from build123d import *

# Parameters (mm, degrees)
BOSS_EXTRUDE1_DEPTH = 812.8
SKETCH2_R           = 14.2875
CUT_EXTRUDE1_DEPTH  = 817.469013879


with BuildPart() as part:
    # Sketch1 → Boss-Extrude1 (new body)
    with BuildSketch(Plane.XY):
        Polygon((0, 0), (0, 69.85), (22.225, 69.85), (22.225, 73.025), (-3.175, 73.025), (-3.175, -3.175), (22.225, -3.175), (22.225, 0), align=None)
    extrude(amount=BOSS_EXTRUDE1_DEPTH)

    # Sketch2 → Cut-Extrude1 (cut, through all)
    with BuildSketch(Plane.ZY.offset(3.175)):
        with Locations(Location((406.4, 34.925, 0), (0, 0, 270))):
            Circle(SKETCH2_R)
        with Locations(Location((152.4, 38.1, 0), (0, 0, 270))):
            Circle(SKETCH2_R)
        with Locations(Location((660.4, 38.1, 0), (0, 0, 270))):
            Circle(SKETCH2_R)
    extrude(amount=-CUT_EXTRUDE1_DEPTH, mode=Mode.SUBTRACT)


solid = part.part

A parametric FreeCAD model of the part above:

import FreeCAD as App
import Part
import Sketcher

V = App.Vector
Q = App.Units.Quantity


def add_polygon(sketch, points):
    """Adds a closed chain of lines whose ends are joined by coincident constraints."""
    first, n = sketch.GeometryCount, len(points)
    for a, b in zip(points, points[1:] + points[:1]):
        sketch.addGeometry(Part.LineSegment(App.Vector(*a, 0), App.Vector(*b, 0)), False)
    for i in range(n):
        sketch.addConstraint(Sketcher.Constraint("Coincident", first + i, 2, first + (i + 1) % n, 1))

doc = App.newDocument("Part")
body = doc.addObject("PartDesign::Body", "Body")

sketch1 = body.newObject("Sketcher::SketchObject", "Sketch")
sketch1.AttachmentSupport = (doc.getObject("XY_Plane"), [""])
sketch1.MapMode = "FlatFace"
add_polygon(sketch1, [(0, 0), (0, 69.8), (22.2, 69.8), (22.2, 73), (-3.2, 73), (-3.2, -3.2), (22.2, -3.2), (22.2, 0)])
sketch1.addConstraint([
    Sketcher.Constraint("Vertical", 0),
    Sketcher.Constraint("Horizontal", 1),
    Sketcher.Constraint("Vertical", 2),
    Sketcher.Constraint("Horizontal", 3),
    Sketcher.Constraint("Vertical", 4),
    Sketcher.Constraint("Horizontal", 5),
    Sketcher.Constraint("Vertical", 6),
    Sketcher.Constraint("Horizontal", 7),
    Sketcher.Constraint("Coincident", 7, 2, -1, 1),
    Sketcher.Constraint("Vertical", 2, 2, 5, 2),
    Sketcher.Constraint("Equal", 2, 6),
    Sketcher.Constraint("DistanceX", 3, 2, 3, 1, Q("1 in")),
    Sketcher.Constraint("DistanceY", 4, 2, 4, 1, Q("3 in")),
    Sketcher.Constraint("DistanceY", 0, 1, 0, 2, Q("2.75 in")),
    Sketcher.Constraint("DistanceX", 1, 1, 1, 2, Q("0.875 in")),
])
pad1 = body.newObject("PartDesign::Pad", "Pad")
pad1.Profile = sketch1
pad1.Length = Q("32 in")

sketch2 = body.newObject("Sketcher::SketchObject", "Sketch001")
sketch2.AttachmentSupport = (doc.getObject("YZ_Plane"), [""])
sketch2.MapMode = "FlatFace"
sketch2.AttachmentOffset = App.Placement(V(0, 0, -0.125 * 25.4), App.Rotation())
sketch2.addGeometry([
    Part.Circle(V(35, 406, 0), V(0, 0, 1), 14),
    Part.Circle(V(38, 152, 0), V(0, 0, 1), 14),
    Part.Circle(V(38, 660, 0), V(0, 0, 1), 14),
], False)
sketch2.addConstraint([
    Sketcher.Constraint("Equal", 0, 1),
    Sketcher.Constraint("Equal", 1, 2),
    Sketcher.Constraint("Vertical", 1, 3, 2, 3),
    Sketcher.Constraint("Diameter", 0, Q("1.125 in")),
    Sketcher.Constraint("DistanceY", -1, 1, 0, 3, Q("16 in")),
    Sketcher.Constraint("DistanceY", -1, 1, 1, 3, Q("6 in")),
    Sketcher.Constraint("DistanceY", -1, 1, 2, 3, Q("26 in")),
    Sketcher.Constraint("DistanceX", -1, 1, 1, 3, Q("1.5 in")),
    Sketcher.Constraint("DistanceX", -1, 1, 0, 3, Q("1.375 in")),
])
pocket1 = body.newObject("PartDesign::Pocket", "Pocket")
pocket1.Profile = sketch2
pocket1.Type = "ThroughAll"
pocket1.Reversed = True

doc.recompute()
